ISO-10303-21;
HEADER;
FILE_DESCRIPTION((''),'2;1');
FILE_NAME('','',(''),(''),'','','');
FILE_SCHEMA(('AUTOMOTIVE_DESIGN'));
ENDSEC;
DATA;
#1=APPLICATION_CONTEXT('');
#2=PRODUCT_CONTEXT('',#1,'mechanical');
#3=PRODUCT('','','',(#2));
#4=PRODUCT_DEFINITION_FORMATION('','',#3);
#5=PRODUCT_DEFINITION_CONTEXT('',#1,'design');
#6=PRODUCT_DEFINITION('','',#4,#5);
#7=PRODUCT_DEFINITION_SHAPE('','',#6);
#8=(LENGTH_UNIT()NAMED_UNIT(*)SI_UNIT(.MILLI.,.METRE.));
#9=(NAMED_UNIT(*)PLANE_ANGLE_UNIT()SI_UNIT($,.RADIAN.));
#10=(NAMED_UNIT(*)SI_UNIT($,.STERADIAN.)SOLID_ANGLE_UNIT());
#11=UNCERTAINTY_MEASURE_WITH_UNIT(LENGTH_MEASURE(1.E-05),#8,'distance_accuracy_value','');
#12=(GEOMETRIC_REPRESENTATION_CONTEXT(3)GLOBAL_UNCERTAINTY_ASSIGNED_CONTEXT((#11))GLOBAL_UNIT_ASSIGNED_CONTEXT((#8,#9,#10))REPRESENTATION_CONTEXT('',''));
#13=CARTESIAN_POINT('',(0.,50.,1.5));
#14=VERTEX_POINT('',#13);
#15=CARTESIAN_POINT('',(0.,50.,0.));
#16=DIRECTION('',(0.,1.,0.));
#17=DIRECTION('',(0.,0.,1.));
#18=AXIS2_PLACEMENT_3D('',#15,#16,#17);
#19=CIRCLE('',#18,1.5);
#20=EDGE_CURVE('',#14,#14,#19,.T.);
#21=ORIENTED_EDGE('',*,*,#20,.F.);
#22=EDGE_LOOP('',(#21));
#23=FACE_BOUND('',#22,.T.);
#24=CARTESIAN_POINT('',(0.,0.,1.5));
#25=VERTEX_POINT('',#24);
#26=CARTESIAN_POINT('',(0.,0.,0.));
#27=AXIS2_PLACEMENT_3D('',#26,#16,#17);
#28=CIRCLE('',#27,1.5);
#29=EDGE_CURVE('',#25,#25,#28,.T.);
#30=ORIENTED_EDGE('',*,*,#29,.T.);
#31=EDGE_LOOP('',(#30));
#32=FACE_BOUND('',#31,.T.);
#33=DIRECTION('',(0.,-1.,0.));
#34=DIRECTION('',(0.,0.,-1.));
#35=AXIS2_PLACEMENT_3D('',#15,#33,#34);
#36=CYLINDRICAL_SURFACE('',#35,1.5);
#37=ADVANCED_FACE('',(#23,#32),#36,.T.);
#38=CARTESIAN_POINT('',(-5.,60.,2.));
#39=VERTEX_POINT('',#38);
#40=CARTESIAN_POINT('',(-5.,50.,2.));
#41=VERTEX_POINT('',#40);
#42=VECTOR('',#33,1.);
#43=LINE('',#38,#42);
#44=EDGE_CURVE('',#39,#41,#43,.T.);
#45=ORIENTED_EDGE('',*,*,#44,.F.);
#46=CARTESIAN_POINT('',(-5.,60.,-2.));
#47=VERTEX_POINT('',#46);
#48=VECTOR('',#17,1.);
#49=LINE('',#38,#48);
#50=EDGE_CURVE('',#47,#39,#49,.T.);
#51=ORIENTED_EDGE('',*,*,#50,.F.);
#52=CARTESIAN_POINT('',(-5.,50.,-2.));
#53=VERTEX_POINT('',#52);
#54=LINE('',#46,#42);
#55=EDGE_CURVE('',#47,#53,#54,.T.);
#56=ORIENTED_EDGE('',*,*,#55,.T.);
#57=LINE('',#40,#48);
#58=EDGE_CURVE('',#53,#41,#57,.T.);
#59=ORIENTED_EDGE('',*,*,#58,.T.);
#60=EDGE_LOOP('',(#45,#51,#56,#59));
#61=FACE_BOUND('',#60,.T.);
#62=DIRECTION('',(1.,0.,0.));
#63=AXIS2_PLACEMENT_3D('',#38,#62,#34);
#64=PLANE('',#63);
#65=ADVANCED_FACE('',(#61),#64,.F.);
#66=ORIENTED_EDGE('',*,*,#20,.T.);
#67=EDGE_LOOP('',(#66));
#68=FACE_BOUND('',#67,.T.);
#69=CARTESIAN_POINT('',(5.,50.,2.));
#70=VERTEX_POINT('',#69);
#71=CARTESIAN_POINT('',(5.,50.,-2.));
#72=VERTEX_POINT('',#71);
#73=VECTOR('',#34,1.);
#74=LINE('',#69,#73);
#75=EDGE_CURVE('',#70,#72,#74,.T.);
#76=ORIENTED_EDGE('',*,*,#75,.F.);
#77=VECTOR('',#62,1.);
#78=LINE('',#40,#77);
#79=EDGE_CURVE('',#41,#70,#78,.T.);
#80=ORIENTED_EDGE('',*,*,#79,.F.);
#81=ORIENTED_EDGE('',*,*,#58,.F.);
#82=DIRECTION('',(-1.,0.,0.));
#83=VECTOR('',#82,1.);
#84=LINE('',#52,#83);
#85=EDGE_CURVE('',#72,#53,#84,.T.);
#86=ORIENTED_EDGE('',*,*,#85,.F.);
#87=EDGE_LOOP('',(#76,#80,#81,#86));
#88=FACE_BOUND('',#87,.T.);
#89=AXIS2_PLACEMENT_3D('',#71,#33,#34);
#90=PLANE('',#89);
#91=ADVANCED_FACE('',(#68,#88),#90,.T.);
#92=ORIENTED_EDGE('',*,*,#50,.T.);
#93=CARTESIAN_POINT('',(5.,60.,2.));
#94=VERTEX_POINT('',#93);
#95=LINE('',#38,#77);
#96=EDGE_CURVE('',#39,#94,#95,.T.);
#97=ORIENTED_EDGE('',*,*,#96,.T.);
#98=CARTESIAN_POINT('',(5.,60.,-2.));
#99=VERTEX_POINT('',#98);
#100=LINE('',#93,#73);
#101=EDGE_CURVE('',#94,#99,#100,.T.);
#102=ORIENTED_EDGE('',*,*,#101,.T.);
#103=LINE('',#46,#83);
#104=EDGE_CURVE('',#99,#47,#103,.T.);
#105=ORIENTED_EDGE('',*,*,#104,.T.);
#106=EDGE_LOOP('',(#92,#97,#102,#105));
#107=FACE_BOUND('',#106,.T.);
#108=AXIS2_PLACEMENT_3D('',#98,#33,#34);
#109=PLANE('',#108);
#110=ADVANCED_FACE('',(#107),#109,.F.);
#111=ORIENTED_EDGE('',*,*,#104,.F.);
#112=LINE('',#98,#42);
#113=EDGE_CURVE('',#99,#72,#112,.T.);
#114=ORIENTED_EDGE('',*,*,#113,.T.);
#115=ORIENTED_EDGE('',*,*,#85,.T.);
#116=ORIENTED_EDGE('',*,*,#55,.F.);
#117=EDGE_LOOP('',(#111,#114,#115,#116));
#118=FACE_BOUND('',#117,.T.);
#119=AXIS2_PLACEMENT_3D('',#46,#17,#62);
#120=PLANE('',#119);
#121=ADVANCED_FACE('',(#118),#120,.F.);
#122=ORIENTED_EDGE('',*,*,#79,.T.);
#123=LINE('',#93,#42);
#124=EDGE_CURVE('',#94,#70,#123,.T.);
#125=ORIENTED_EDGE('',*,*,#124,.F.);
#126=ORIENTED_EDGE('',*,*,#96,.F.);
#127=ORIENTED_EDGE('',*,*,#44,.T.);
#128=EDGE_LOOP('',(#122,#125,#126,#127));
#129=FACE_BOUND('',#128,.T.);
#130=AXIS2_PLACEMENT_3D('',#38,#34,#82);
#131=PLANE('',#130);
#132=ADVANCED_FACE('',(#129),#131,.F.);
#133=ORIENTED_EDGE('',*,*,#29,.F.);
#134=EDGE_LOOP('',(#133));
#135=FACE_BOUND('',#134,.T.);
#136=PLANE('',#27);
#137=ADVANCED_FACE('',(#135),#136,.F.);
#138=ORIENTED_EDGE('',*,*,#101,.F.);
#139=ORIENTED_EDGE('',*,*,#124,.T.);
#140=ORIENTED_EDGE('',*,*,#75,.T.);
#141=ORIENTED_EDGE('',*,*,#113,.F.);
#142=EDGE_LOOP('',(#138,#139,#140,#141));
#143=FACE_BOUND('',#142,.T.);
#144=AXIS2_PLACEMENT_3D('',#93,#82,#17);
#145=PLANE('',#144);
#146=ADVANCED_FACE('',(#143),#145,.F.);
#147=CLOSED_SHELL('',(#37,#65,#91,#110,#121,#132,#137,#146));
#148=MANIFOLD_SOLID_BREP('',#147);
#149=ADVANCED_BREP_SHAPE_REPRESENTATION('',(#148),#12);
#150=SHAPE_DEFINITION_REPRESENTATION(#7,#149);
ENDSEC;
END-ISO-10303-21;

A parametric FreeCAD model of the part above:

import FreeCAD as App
import Part
import Sketcher
from FreeCAD import Vector
Q = App.Units.Quantity

doc = App.newDocument("Part")
body = doc.addObject("PartDesign::Body", "Body")

# Sketch on XZ plane
sketch1 = body.newObject("Sketcher::SketchObject", "Sketch")
sketch1.AttachmentSupport = (doc.getObject("XZ_Plane"), [""])
sketch1.MapMode = "FlatFace"
sketch1.addGeometry(Part.Circle(Vector(0, 0, 0), Vector(0, 0, 1), 1.5), False)
sketch1.addConstraint([
    Sketcher.Constraint("Coincident", 0, 3, -1, 1),
    Sketcher.Constraint("Diameter", 0, Q("3 mm")),
])
pad1 = body.newObject("PartDesign::Pad", "Pad")
pad1.Profile = sketch1
pad1.Length = 50
pad1.Reversed = True

# Sketch on XZ plane
sketch2 = body.newObject("Sketcher::SketchObject", "Sketch001")
sketch2.AttachmentSupport = (doc.getObject("XZ_Plane"), [""])
sketch2.MapMode = "FlatFace"
sketch2.AttachmentOffset = App.Placement(Vector(0, 0, -50), App.Rotation())
sketch2.addGeometry([
    Part.LineSegment(Vector(-5, -2, 0), Vector(-5, 2, 0)),
    Part.LineSegment(Vector(-5, 2, 0), Vector(5, 2, 0)),
    Part.LineSegment(Vector(5, 2, 0), Vector(5, -2, 0)),
    Part.LineSegment(Vector(5, -2, 0), Vector(-5, -2, 0)),
], False)
sketch2.addConstraint([
    Sketcher.Constraint("Coincident", 0, 2, 1, 1),
    Sketcher.Constraint("Coincident", 1, 2, 2, 1),
    Sketcher.Constraint("Coincident", 2, 2, 3, 1),
    Sketcher.Constraint("Coincident", 3, 2, 0, 1),
    Sketcher.Constraint("Vertical", 0),
    Sketcher.Constraint("Horizontal", 1),
    Sketcher.Constraint("Vertical", 2),
    Sketcher.Constraint("Horizontal", 3),
    Sketcher.Constraint("Symmetric", 0, 2, 2, 2, -1, 1),
    Sketcher.Constraint("DistanceX", 1, 1, 1, 2, Q("10 mm")),
    Sketcher.Constraint("DistanceY", 0, 1, 0, 2, Q("4 mm")),
])
pad2 = body.newObject("PartDesign::Pad", "Pad001")
pad2.Profile = sketch2
pad2.Length = 10
pad2.Reversed = True

doc.recompute()
